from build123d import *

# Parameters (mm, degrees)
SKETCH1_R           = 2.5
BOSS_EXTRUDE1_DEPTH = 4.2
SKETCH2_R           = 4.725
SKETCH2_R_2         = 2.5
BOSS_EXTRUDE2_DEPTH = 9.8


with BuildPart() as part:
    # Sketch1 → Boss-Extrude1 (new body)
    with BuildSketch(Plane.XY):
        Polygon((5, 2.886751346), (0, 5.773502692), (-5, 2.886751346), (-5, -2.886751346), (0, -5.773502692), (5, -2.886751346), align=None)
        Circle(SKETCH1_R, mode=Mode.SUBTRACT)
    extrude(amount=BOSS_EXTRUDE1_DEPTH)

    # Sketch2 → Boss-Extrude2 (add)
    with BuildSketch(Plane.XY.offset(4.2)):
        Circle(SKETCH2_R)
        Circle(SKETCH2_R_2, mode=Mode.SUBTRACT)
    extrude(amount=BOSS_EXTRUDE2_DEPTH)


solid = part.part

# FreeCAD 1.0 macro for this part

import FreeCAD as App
import Part
import Sketcher
Q = App.Units.Quantity


def add_polygon(sketch, points):
    """Adds a closed chain of lines whose ends are joined by coincident constraints."""
    first, n = sketch.GeometryCount, len(points)
    for a, b in zip(points, points[1:] + points[:1]):
        sketch.addGeometry(Part.LineSegment(App.Vector(*a, 0), App.Vector(*b, 0)), False)
    for i in range(n):
        sketch.addConstraint(Sketcher.Constraint("Coincident", first + i, 2, first + (i + 1) % n, 1))

doc = App.newDocument("Part")
params = doc.addObject("Spreadsheet::Sheet", "Params")
for row, (alias, value) in enumerate([
    ("sketch1_diameter", "5 mm"),
    ("pad1_length", "4.2 mm"),
    ("sketch2_diameter", "5 mm"),
    ("sketch2_diameter2", "9.45 mm"),
    ("pad2_length", "9.8 mm"),
], start=1):
    params.set(f"A{row}", alias)
    params.set(f"B{row}", "=" + value)
    params.setAlias(f"B{row}", alias)

body = doc.addObject("PartDesign::Body", "Body")

# Sketch on XY plane
sketch1 = body.newObject("Sketcher::SketchObject", "Sketch")
sketch1.AttachmentSupport = (doc.getObject("XY_Plane"), [""])
sketch1.MapMode = "FlatFace"
add_polygon(sketch1, [(5, 2.9), (0, 5.8), (-5, 2.9), (-5, -2.9), (0, -5.8), (5, -2.9)])  # lines 0-5
sketch1.addGeometry(Part.Circle(App.Vector(0, 0, 0), App.Vector(0, 0, 1), 2.5), False)  # 6
sketch1.addConstraint(Sketcher.Constraint("Vertical", 2))
sketch1.addConstraint(Sketcher.Constraint("Vertical", 5))
sketch1.addConstraint(Sketcher.Constraint("Coincident", 6, 3, -1, 1))
sketch1.addConstraint(Sketcher.Constraint("Symmetric", 0, 2, 3, 2, -1, 1))
sketch1.addConstraint(Sketcher.Constraint("Symmetric", 1, 2, 4, 2, -1, 1))
sketch1.addConstraint(Sketcher.Constraint("PointOnObject", 0, 2, -2))
sketch1.addConstraint(Sketcher.Constraint("Parallel", 0, 3))
sketch1.addConstraint(Sketcher.Constraint("Horizontal", 2, 2, 4, 2))
sketch1.addConstraint(Sketcher.Constraint("Diameter", 6, 5.0))
sketch1.addConstraint(Sketcher.Constraint("Angle", 0, Q("150 deg")))
sketch1.addConstraint(Sketcher.Constraint("DistanceX", 1, 2, -1, 1, 5.0))
sketch1.addConstraint(Sketcher.Constraint("DistanceY", 2, 2, 2, 1, 5.773503))
sketch1.setExpression("Constraints[14]", "Params.sketch1_diameter")
pad1 = body.newObject("PartDesign::Pad", "Pad")
pad1.Profile = sketch1
pad1.setExpression("Length", "Params.pad1_length")

# Sketch on XY plane
sketch2 = body.newObject("Sketcher::SketchObject", "Sketch001")
sketch2.AttachmentSupport = (doc.getObject("XY_Plane"), [""])
sketch2.MapMode = "FlatFace"
sketch2.AttachmentOffset = App.Placement(App.Vector(0, 0, 4.2), App.Rotation())
sketch2.addGeometry(Part.Circle(App.Vector(0, 0, 0), App.Vector(0, 0, 1), 4.7), False)
sketch2.addGeometry(Part.Circle(App.Vector(0, 0, 0), App.Vector(0, 0, 1), 2.5), False)
sketch2.addConstraint(Sketcher.Constraint("Coincident", 0, 3, -1, 1))
sketch2.addConstraint(Sketcher.Constraint("Coincident", 1, 3, -1, 1))
sketch2.addConstraint(Sketcher.Constraint("Diameter", 1, 5.0))
sketch2.addConstraint(Sketcher.Constraint("Diameter", 0, 9.45))
sketch2.setExpression("Constraints[2]", "Params.sketch2_diameter")
sketch2.setExpression("Constraints[3]", "Params.sketch2_diameter2")
pad2 = body.newObject("PartDesign::Pad", "Pad001")
pad2.Profile = sketch2
pad2.setExpression("Length", "Params.pad2_length")

doc.recompute()
